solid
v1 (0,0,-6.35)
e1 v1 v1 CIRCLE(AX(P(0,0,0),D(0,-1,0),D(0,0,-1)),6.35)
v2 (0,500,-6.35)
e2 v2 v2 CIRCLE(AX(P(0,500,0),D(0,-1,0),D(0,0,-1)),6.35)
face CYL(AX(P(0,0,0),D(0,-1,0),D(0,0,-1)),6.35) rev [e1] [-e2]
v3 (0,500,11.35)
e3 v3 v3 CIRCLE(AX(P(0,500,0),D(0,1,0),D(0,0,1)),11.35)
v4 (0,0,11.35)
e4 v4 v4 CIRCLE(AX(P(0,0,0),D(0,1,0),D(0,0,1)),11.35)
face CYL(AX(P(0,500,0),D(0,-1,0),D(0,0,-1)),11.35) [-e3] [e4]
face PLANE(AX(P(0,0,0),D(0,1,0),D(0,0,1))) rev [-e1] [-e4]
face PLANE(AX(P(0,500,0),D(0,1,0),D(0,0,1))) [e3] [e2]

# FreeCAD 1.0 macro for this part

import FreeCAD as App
import Part
import Sketcher
Q = App.Units.Quantity

doc = App.newDocument("Part")
body = doc.addObject("PartDesign::Body", "Body")

# Sketch on XZ plane
sketch1 = body.newObject("Sketcher::SketchObject", "Sketch")
sketch1.AttachmentSupport = (doc.getObject("XZ_Plane"), [""])
sketch1.MapMode = "FlatFace"
sketch1.addGeometry(Part.Circle(App.Vector(0, 0, 0), App.Vector(0, 0, 1), 11.35), False)
sketch1.addConstraint(Sketcher.Constraint("Coincident", 0, 3, -1, 1))
sketch1.addConstraint(Sketcher.Constraint("Diameter", 0, Q("22.7 mm")))
pad1 = body.newObject("PartDesign::Pad", "Pad")
pad1.Profile = sketch1
pad1.Length = 500
pad1.Reversed = True

# Sketch on XZ plane
sketch2 = body.newObject("Sketcher::SketchObject", "Sketch001")
sketch2.AttachmentSupport = (doc.getObject("XZ_Plane"), [""])
sketch2.MapMode = "FlatFace"
sketch2.addGeometry(Part.Circle(App.Vector(0, 0, 0), App.Vector(0, 0, 1), 6.35), False)
sketch2.addConstraint(Sketcher.Constraint("Coincident", 0, 3, -1, 1))
sketch2.addConstraint(Sketcher.Constraint("Diameter", 0, Q("12.7 mm")))
doc.recompute()
hole = body.newObject("PartDesign::Hole", "Hole")
hole.Profile = sketch2
hole.ThreadType = "None"
hole.Diameter = 12.7
hole.DepthType = "ThroughAll"

doc.recompute()
